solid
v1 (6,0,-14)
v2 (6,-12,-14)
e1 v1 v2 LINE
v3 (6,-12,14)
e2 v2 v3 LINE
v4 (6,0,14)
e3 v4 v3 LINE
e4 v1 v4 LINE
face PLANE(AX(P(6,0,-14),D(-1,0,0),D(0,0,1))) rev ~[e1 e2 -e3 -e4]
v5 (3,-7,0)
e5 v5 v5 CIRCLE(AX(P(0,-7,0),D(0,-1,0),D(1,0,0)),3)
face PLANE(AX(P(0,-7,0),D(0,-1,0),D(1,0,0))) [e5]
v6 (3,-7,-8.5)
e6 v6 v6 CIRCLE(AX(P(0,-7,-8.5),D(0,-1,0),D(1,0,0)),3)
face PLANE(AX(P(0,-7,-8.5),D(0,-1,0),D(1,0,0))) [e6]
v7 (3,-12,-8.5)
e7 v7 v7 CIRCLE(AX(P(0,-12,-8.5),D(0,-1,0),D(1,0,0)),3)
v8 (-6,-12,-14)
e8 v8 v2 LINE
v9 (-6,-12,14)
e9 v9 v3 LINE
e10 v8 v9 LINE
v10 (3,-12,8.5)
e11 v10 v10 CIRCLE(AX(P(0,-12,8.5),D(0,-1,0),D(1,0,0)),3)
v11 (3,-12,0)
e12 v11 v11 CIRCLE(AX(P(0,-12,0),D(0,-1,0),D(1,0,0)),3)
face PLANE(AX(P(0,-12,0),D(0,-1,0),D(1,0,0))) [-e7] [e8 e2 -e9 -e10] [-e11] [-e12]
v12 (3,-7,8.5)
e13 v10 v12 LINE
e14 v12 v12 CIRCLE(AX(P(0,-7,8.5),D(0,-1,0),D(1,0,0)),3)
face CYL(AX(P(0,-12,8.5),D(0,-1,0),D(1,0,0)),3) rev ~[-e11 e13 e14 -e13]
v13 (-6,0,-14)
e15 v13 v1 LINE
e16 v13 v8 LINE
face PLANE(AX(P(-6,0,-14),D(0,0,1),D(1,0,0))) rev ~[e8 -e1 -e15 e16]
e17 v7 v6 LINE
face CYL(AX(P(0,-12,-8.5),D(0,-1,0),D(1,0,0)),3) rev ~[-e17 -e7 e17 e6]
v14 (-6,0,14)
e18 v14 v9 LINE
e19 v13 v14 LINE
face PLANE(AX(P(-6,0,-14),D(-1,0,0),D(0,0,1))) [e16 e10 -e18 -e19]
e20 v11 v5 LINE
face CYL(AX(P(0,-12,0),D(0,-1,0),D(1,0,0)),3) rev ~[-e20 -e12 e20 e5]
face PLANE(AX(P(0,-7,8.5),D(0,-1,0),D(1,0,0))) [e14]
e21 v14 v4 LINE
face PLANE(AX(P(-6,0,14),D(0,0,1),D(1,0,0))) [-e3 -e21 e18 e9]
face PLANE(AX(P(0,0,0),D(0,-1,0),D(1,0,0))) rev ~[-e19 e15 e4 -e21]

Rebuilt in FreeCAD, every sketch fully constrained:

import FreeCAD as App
import Part
import Sketcher

V = App.Vector
Q = App.Units.Quantity

doc = App.newDocument("Part")
body = doc.addObject("PartDesign::Body", "Body")

sketch1 = body.newObject("Sketcher::SketchObject", "Sketch")
sketch1.AttachmentSupport = (doc.getObject("XZ_Plane"), [""])
sketch1.MapMode = "FlatFace"
sketch1.addGeometry([
    Part.LineSegment(V(-6, 14, 0), V(-6, -14, 0)),
    Part.LineSegment(V(-6, -14, 0), V(6, -14, 0)),
    Part.LineSegment(V(6, -14, 0), V(6, 14, 0)),
    Part.LineSegment(V(6, 14, 0), V(-6, 14, 0)),
], False)
sketch1.addConstraint([
    Sketcher.Constraint("Coincident", 0, 2, 1, 1),
    Sketcher.Constraint("Coincident", 1, 2, 2, 1),
    Sketcher.Constraint("Coincident", 2, 2, 3, 1),
    Sketcher.Constraint("Coincident", 3, 2, 0, 1),
    Sketcher.Constraint("Vertical", 0),
    Sketcher.Constraint("Horizontal", 1),
    Sketcher.Constraint("Vertical", 2),
    Sketcher.Constraint("Horizontal", 3),
    Sketcher.Constraint("Symmetric", 0, 2, 2, 2, -1, 1),
    Sketcher.Constraint("DistanceX", 1, 1, 1, 2, Q("12 mm")),
    Sketcher.Constraint("DistanceY", 0, 2, 0, 1, Q("28 mm")),
])
pad1 = body.newObject("PartDesign::Pad", "Pad")
pad1.Profile = sketch1
pad1.Length = 12

sketch2 = body.newObject("Sketcher::SketchObject", "Sketch001")
sketch2.AttachmentSupport = (doc.getObject("XZ_Plane"), [""])
sketch2.MapMode = "FlatFace"
sketch2.AttachmentOffset = App.Placement(V(0, 0, 12), App.Rotation())
sketch2.addGeometry([
    Part.Circle(V(0, 8.5, 0), V(0, 0, 1), 3),
    Part.Circle(V(0, 0, 0), V(0, 0, 1), 3),
    Part.Circle(V(0, -8.5, 0), V(0, 0, 1), 3),
], False)
sketch2.addConstraint([
    Sketcher.Constraint("Coincident", 1, 3, -1, 1),
    Sketcher.Constraint("Equal", 0, 1),
    Sketcher.Constraint("Equal", 1, 2),
    Sketcher.Constraint("Symmetric", 0, 3, 2, 3, -1, 1),
    Sketcher.Constraint("PointOnObject", 0, 3, -2),
    Sketcher.Constraint("Diameter", 0, Q("6 mm")),
    Sketcher.Constraint("DistanceY", 2, 3, 0, 3, Q("17 mm")),
])
pocket1 = body.newObject("PartDesign::Pocket", "Pocket")
pocket1.Profile = sketch2
pocket1.Length = 5

doc.recompute()
